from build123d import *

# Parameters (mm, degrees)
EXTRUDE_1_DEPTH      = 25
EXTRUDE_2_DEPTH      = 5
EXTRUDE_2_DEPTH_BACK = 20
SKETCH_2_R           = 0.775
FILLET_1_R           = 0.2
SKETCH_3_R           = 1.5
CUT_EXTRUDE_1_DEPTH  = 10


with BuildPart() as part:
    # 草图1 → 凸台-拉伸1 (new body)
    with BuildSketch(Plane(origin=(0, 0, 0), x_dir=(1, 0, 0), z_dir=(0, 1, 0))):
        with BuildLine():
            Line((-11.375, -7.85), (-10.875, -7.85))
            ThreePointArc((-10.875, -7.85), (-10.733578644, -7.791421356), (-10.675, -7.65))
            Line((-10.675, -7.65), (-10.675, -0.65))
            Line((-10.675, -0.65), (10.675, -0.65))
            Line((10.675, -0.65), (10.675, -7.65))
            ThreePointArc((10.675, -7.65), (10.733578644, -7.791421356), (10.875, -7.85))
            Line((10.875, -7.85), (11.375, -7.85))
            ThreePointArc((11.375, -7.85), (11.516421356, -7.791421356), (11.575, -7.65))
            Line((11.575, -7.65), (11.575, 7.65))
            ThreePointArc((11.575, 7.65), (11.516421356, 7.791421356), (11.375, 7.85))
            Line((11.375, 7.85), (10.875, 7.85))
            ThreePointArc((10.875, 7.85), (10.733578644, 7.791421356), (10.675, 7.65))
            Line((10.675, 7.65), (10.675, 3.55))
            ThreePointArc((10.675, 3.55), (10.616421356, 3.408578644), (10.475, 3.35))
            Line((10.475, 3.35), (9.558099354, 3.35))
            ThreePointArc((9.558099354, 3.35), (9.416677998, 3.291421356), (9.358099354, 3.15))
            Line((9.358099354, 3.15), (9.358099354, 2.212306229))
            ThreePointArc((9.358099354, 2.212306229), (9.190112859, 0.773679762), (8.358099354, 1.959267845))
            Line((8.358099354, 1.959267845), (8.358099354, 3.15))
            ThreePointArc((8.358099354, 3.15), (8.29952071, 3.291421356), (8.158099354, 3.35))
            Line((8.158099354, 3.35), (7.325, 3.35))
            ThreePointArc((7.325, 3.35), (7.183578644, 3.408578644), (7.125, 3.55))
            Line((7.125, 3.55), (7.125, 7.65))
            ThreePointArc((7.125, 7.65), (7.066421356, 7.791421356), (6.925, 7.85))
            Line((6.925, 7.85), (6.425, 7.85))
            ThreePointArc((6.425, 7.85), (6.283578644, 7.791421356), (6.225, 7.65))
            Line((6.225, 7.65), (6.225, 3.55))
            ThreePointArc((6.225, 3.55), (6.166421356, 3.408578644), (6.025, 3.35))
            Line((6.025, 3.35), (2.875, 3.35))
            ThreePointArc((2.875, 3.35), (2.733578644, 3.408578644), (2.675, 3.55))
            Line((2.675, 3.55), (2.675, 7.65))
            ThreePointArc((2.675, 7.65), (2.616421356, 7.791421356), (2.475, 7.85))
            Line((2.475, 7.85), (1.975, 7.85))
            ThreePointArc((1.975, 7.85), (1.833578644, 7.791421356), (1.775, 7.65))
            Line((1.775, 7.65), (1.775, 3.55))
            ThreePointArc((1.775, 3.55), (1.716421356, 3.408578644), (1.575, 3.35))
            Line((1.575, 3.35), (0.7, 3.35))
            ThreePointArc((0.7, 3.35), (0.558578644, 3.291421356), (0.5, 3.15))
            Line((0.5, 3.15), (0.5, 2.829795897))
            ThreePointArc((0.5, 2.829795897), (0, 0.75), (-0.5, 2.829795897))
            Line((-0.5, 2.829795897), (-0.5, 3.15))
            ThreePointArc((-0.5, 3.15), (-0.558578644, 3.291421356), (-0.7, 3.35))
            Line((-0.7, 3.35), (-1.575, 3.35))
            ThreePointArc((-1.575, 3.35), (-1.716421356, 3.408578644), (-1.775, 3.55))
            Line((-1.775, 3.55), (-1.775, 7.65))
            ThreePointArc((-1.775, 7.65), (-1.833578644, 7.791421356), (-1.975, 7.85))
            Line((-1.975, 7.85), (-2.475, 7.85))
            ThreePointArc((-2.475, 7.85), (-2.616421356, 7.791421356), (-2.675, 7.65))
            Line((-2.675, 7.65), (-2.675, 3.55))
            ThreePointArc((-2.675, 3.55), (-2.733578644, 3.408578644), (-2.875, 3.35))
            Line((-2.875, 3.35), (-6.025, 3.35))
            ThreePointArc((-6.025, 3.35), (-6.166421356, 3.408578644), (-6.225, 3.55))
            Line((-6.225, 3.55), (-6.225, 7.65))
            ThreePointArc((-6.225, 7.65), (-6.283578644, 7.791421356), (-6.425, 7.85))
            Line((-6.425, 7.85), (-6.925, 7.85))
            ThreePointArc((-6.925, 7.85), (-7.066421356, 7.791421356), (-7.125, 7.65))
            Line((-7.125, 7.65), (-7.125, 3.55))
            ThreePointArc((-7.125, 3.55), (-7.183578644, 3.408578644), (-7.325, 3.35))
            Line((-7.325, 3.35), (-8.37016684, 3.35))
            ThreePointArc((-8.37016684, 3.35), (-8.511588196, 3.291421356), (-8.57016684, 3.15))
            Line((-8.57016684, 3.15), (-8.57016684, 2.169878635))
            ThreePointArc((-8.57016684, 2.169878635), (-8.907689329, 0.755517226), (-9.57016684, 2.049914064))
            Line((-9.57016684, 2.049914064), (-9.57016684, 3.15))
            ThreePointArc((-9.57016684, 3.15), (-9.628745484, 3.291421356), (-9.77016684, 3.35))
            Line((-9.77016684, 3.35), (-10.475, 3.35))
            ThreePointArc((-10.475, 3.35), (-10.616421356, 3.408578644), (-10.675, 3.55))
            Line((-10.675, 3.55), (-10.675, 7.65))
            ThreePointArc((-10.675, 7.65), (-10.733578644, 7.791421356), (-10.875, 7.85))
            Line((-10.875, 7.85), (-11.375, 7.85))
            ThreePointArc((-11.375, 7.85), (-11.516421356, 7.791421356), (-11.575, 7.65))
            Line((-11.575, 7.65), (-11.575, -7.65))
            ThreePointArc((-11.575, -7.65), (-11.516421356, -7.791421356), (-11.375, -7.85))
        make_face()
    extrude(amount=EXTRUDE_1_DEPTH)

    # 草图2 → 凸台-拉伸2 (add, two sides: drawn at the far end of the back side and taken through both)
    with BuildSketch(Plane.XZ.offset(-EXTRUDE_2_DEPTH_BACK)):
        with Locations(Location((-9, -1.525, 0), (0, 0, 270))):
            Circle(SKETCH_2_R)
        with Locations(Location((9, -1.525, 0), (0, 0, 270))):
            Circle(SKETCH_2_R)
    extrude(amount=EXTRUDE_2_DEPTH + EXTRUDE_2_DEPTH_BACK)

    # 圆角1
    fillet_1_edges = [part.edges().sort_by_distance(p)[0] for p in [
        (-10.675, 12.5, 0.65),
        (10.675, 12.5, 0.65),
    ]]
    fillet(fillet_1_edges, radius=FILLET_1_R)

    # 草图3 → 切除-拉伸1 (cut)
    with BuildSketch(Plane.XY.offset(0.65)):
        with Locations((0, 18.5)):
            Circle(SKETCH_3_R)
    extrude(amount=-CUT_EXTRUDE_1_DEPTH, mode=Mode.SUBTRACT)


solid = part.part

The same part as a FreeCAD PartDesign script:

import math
import FreeCAD as App
import Part
import Sketcher

V = App.Vector
Q = App.Units.Quantity


def edges_at(feature, points):
    """Names of the edges that pass closest to the given points."""
    edges = feature.Shape.Edges
    near = lambda p: min(range(len(edges)), key=lambda i: edges[i].distToShape(Part.Vertex(*p))[0])
    return sorted({f"Edge{near(p) + 1}" for p in points})

doc = App.newDocument("Part")
params = doc.addObject("Spreadsheet::Sheet", "Params")
for row, (alias, value) in enumerate([
    ("sketch1_radius", "0.2 mm"),
    ("sketch1_radius2", "1.1 mm"),
    ("sketch1_height", "7 mm"),
    ("sketch1_width", "0.5 mm"),
    ("sketch1_height2", "15.3 mm"),
    ("pad1_length", "25 mm"),
    ("sketch2_diameter", "1.55 mm"),
    ("pad2_length", "5 mm"),
    ("pad2_length2", "20 mm"),
    ("fillet_radius", "0.2 mm"),
    ("sketch3_diameter", "3 mm"),
    ("pocket1_length", "10 mm"),
], start=1):
    params.set(f"A{row}", alias)
    params.set(f"B{row}", "=" + value)
    params.setAlias(f"B{row}", alias)

body = doc.addObject("PartDesign::Body", "Body")

sketch1 = body.newObject("Sketcher::SketchObject", "Sketch")
sketch1.AttachmentSupport = (doc.getObject("XZ_Plane"), [""])
sketch1.MapMode = "FlatFace"
sketch1.addGeometry(Part.LineSegment(V(-11.38, 7.85, 0), V(-10.88, 7.85, 0)), False)
sketch1.addGeometry(Part.ArcOfCircle(Part.Circle(V(-10.88, 7.65, 0), V(0, 0, 1), 0.2), math.radians(0), math.radians(90)), False)
sketch1.addGeometry(Part.LineSegment(V(-10.68, 7.65, 0), V(-10.68, 0.65, 0)), False)
sketch1.addGeometry(Part.LineSegment(V(-10.68, 0.65, 0), V(10.68, 0.65, 0)), False)
sketch1.addGeometry(Part.LineSegment(V(10.68, 0.65, 0), V(10.68, 7.65, 0)), False)
sketch1.addGeometry(Part.ArcOfCircle(Part.Circle(V(10.88, 7.65, 0), V(0, 0, 1), 0.2), math.radians(90), math.radians(180)), False)
sketch1.addGeometry(Part.LineSegment(V(10.88, 7.85, 0), V(11.38, 7.85, 0)), False)
sketch1.addGeometry(Part.ArcOfCircle(Part.Circle(V(11.37, 7.65, 0), V(0, 0, 1), 0.2), math.radians(0), math.radians(90)), False)
sketch1.addGeometry(Part.LineSegment(V(11.57, 7.65, 0), V(11.57, -7.65, 0)), False)
sketch1.addGeometry(Part.ArcOfCircle(Part.Circle(V(11.37, -7.65, 0), V(0, 0, 1), 0.2), math.radians(-90), math.radians(0)), False)
sketch1.addGeometry(Part.LineSegment(V(11.38, -7.85, 0), V(10.88, -7.85, 0)), False)
sketch1.addGeometry(Part.ArcOfCircle(Part.Circle(V(10.88, -7.65, 0), V(0, 0, 1), 0.2), math.radians(-180), math.radians(-90)), False)
sketch1.addGeometry(Part.LineSegment(V(10.68, -7.65, 0), V(10.68, -3.55, 0)), False)
sketch1.addGeometry(Part.ArcOfCircle(Part.Circle(V(10.47, -3.55, 0), V(0, 0, 1), 0.2), math.radians(0), math.radians(90)), False)
sketch1.addGeometry(Part.LineSegment(V(10.47, -3.35, 0), V(9.56, -3.35, 0)), False)
sketch1.addGeometry(Part.ArcOfCircle(Part.Circle(V(9.56, -3.15, 0), V(0, 0, 1), 0.2), math.radians(-180), math.radians(-90)), False)
sketch1.addGeometry(Part.LineSegment(V(9.36, -3.15, 0), V(9.36, -2.21, 0)), False)
sketch1.addGeometry(Part.ArcOfCircle(Part.Circle(V(9, -1.52, 0), V(0, 0, 1), 0.78), math.radians(-62), math.radians(214)), False)
sketch1.addGeometry(Part.LineSegment(V(8.36, -1.96, 0), V(8.36, -3.15, 0)), False)
sketch1.addGeometry(Part.ArcOfCircle(Part.Circle(V(8.16, -3.15, 0), V(0, 0, 1), 0.2), math.radians(-90), math.radians(0)), False)
sketch1.addGeometry(Part.LineSegment(V(8.16, -3.35, 0), V(7.33, -3.35, 0)), False)
sketch1.addGeometry(Part.ArcOfCircle(Part.Circle(V(7.33, -3.55, 0), V(0, 0, 1), 0.2), math.radians(90), math.radians(180)), False)
sketch1.addGeometry(Part.LineSegment(V(7.12, -3.55, 0), V(7.12, -7.65, 0)), False)
sketch1.addGeometry(Part.ArcOfCircle(Part.Circle(V(6.92, -7.65, 0), V(0, 0, 1), 0.2), math.radians(-90), math.radians(0)), False)
sketch1.addGeometry(Part.LineSegment(V(6.92, -7.85, 0), V(6.42, -7.85, 0)), False)
sketch1.addGeometry(Part.ArcOfCircle(Part.Circle(V(6.43, -7.65, 0), V(0, 0, 1), 0.2), math.radians(-180), math.radians(-90)), False)
sketch1.addGeometry(Part.LineSegment(V(6.22, -7.65, 0), V(6.22, -3.55, 0)), False)
sketch1.addGeometry(Part.ArcOfCircle(Part.Circle(V(6.02, -3.55, 0), V(0, 0, 1), 0.2), math.radians(0), math.radians(90)), False)
sketch1.addGeometry(Part.LineSegment(V(6.03, -3.35, 0), V(2.88, -3.35, 0)), False)
sketch1.addGeometry(Part.ArcOfCircle(Part.Circle(V(2.88, -3.55, 0), V(0, 0, 1), 0.2), math.radians(90), math.radians(180)), False)
sketch1.addGeometry(Part.LineSegment(V(2.67, -3.55, 0), V(2.67, -7.65, 0)), False)
sketch1.addGeometry(Part.ArcOfCircle(Part.Circle(V(2.47, -7.65, 0), V(0, 0, 1), 0.2), math.radians(-90), math.radians(0)), False)
sketch1.addGeometry(Part.LineSegment(V(2.48, -7.85, 0), V(1.98, -7.85, 0)), False)
sketch1.addGeometry(Part.ArcOfCircle(Part.Circle(V(1.98, -7.65, 0), V(0, 0, 1), 0.2), math.radians(-180), math.radians(-90)), False)
sketch1.addGeometry(Part.LineSegment(V(1.77, -7.65, 0), V(1.77, -3.55, 0)), False)
sketch1.addGeometry(Part.ArcOfCircle(Part.Circle(V(1.57, -3.55, 0), V(0, 0, 1), 0.2), math.radians(0), math.radians(90)), False)
sketch1.addGeometry(Part.LineSegment(V(1.57, -3.35, 0), V(0.7, -3.35, 0)), False)
sketch1.addGeometry(Part.ArcOfCircle(Part.Circle(V(0.7, -3.15, 0), V(0, 0, 1), 0.2), math.radians(-180), math.radians(-90)), False)
sketch1.addGeometry(Part.LineSegment(V(0.5, -3.15, 0), V(0.5, -2.83, 0)), False)
sketch1.addGeometry(Part.ArcOfCircle(Part.Circle(V(0, -1.85, 0), V(0, 0, 1), 1.1), math.radians(-63), math.radians(243)), False)
sketch1.addGeometry(Part.LineSegment(V(-0.5, -2.83, 0), V(-0.5, -3.15, 0)), False)
sketch1.addGeometry(Part.ArcOfCircle(Part.Circle(V(-0.7, -3.15, 0), V(0, 0, 1), 0.2), math.radians(-90), math.radians(0)), False)
sketch1.addGeometry(Part.LineSegment(V(-0.7, -3.35, 0), V(-1.57, -3.35, 0)), False)
sketch1.addGeometry(Part.ArcOfCircle(Part.Circle(V(-1.57, -3.55, 0), V(0, 0, 1), 0.2), math.radians(90), math.radians(180)), False)
sketch1.addGeometry(Part.LineSegment(V(-1.77, -3.55, 0), V(-1.77, -7.65, 0)), False)
sketch1.addGeometry(Part.ArcOfCircle(Part.Circle(V(-1.98, -7.65, 0), V(0, 0, 1), 0.2), math.radians(-90), math.radians(0)), False)
sketch1.addGeometry(Part.LineSegment(V(-1.98, -7.85, 0), V(-2.48, -7.85, 0)), False)
sketch1.addGeometry(Part.ArcOfCircle(Part.Circle(V(-2.47, -7.65, 0), V(0, 0, 1), 0.2), math.radians(-180), math.radians(-90)), False)
sketch1.addGeometry(Part.LineSegment(V(-2.67, -7.65, 0), V(-2.67, -3.55, 0)), False)
sketch1.addGeometry(Part.ArcOfCircle(Part.Circle(V(-2.88, -3.55, 0), V(0, 0, 1), 0.2), math.radians(0), math.radians(90)), False)
sketch1.addGeometry(Part.LineSegment(V(-2.88, -3.35, 0), V(-6.03, -3.35, 0)), False)
sketch1.addGeometry(Part.ArcOfCircle(Part.Circle(V(-6.02, -3.55, 0), V(0, 0, 1), 0.2), math.radians(90), math.radians(180)), False)
sketch1.addGeometry(Part.LineSegment(V(-6.22, -3.55, 0), V(-6.22, -7.65, 0)), False)
sketch1.addGeometry(Part.ArcOfCircle(Part.Circle(V(-6.43, -7.65, 0), V(0, 0, 1), 0.2), math.radians(-90), math.radians(0)), False)
sketch1.addGeometry(Part.LineSegment(V(-6.42, -7.85, 0), V(-6.92, -7.85, 0)), False)
sketch1.addGeometry(Part.ArcOfCircle(Part.Circle(V(-6.92, -7.65, 0), V(0, 0, 1), 0.2), math.radians(-180), math.radians(-90)), False)
sketch1.addGeometry(Part.LineSegment(V(-7.12, -7.65, 0), V(-7.12, -3.55, 0)), False)
sketch1.addGeometry(Part.ArcOfCircle(Part.Circle(V(-7.33, -3.55, 0), V(0, 0, 1), 0.2), math.radians(0), math.radians(90)), False)
sketch1.addGeometry(Part.LineSegment(V(-7.33, -3.35, 0), V(-8.37, -3.35, 0)), False)
sketch1.addGeometry(Part.ArcOfCircle(Part.Circle(V(-8.37, -3.15, 0), V(0, 0, 1), 0.2), math.radians(-180), math.radians(-90)), False)
sketch1.addGeometry(Part.LineSegment(V(-8.57, -3.15, 0), V(-8.57, -2.17, 0)), False)
sketch1.addGeometry(Part.ArcOfCircle(Part.Circle(V(-9, -1.52, 0), V(0, 0, 1), 0.78), math.radians(-56), math.radians(223)), False)
sketch1.addGeometry(Part.LineSegment(V(-9.57, -2.05, 0), V(-9.57, -3.15, 0)), False)
sketch1.addGeometry(Part.ArcOfCircle(Part.Circle(V(-9.77, -3.15, 0), V(0, 0, 1), 0.2), math.radians(-90), math.radians(0)), False)
sketch1.addGeometry(Part.LineSegment(V(-9.77, -3.35, 0), V(-10.47, -3.35, 0)), False)
sketch1.addGeometry(Part.ArcOfCircle(Part.Circle(V(-10.47, -3.55, 0), V(0, 0, 1), 0.2), math.radians(90), math.radians(180)), False)
sketch1.addGeometry(Part.LineSegment(V(-10.68, -3.55, 0), V(-10.68, -7.65, 0)), False)
sketch1.addGeometry(Part.ArcOfCircle(Part.Circle(V(-10.88, -7.65, 0), V(0, 0, 1), 0.2), math.radians(-90), math.radians(0)), False)
sketch1.addGeometry(Part.LineSegment(V(-10.88, -7.85, 0), V(-11.38, -7.85, 0)), False)
sketch1.addGeometry(Part.ArcOfCircle(Part.Circle(V(-11.37, -7.65, 0), V(0, 0, 1), 0.2), math.radians(-180), math.radians(-90)), False)
sketch1.addGeometry(Part.LineSegment(V(-11.57, -7.65, 0), V(-11.57, 7.65, 0)), False)
sketch1.addGeometry(Part.ArcOfCircle(Part.Circle(V(-11.37, 7.65, 0), V(0, 0, 1), 0.2), math.radians(90), math.radians(180)), False)
sketch1.addConstraint(Sketcher.Constraint("Tangent", 0, 2, 1, 2))
sketch1.addConstraint(Sketcher.Constraint("Tangent", 1, 1, 2, 1))
sketch1.addConstraint(Sketcher.Constraint("Coincident", 2, 2, 3, 1))
sketch1.addConstraint(Sketcher.Constraint("Coincident", 3, 2, 4, 1))
sketch1.addConstraint(Sketcher.Constraint("Tangent", 4, 2, 5, 2))
sketch1.addConstraint(Sketcher.Constraint("Tangent", 5, 1, 6, 1))
sketch1.addConstraint(Sketcher.Constraint("Tangent", 6, 2, 7, 2))
sketch1.addConstraint(Sketcher.Constraint("Tangent", 7, 1, 8, 1))
sketch1.addConstraint(Sketcher.Constraint("Tangent", 8, 2, 9, 2))
sketch1.addConstraint(Sketcher.Constraint("Tangent", 9, 1, 10, 1))
sketch1.addConstraint(Sketcher.Constraint("Tangent", 10, 2, 11, 2))
sketch1.addConstraint(Sketcher.Constraint("Tangent", 11, 1, 12, 1))
sketch1.addConstraint(Sketcher.Constraint("Tangent", 12, 2, 13, 1))
sketch1.addConstraint(Sketcher.Constraint("Tangent", 13, 2, 14, 1))
sketch1.addConstraint(Sketcher.Constraint("Tangent", 14, 2, 15, 2))
sketch1.addConstraint(Sketcher.Constraint("Tangent", 15, 1, 16, 1))
sketch1.addConstraint(Sketcher.Constraint("Coincident", 16, 2, 17, 1))
sketch1.addConstraint(Sketcher.Constraint("Coincident", 17, 2, 18, 1))
sketch1.addConstraint(Sketcher.Constraint("Tangent", 18, 2, 19, 2))
sketch1.addConstraint(Sketcher.Constraint("Tangent", 19, 1, 20, 1))
sketch1.addConstraint(Sketcher.Constraint("Tangent", 20, 2, 21, 1))
sketch1.addConstraint(Sketcher.Constraint("Tangent", 21, 2, 22, 1))
sketch1.addConstraint(Sketcher.Constraint("Tangent", 22, 2, 23, 2))
sketch1.addConstraint(Sketcher.Constraint("Tangent", 23, 1, 24, 1))
sketch1.addConstraint(Sketcher.Constraint("Tangent", 24, 2, 25, 2))
sketch1.addConstraint(Sketcher.Constraint("Tangent", 25, 1, 26, 1))
sketch1.addConstraint(Sketcher.Constraint("Tangent", 26, 2, 27, 1))
sketch1.addConstraint(Sketcher.Constraint("Tangent", 27, 2, 28, 1))
sketch1.addConstraint(Sketcher.Constraint("Tangent", 28, 2, 29, 1))
sketch1.addConstraint(Sketcher.Constraint("Tangent", 29, 2, 30, 1))
sketch1.addConstraint(Sketcher.Constraint("Tangent", 30, 2, 31, 2))
sketch1.addConstraint(Sketcher.Constraint("Tangent", 31, 1, 32, 1))
sketch1.addConstraint(Sketcher.Constraint("Tangent", 32, 2, 33, 2))
sketch1.addConstraint(Sketcher.Constraint("Tangent", 33, 1, 34, 1))
sketch1.addConstraint(Sketcher.Constraint("Tangent", 34, 2, 35, 1))
sketch1.addConstraint(Sketcher.Constraint("Tangent", 35, 2, 36, 1))
sketch1.addConstraint(Sketcher.Constraint("Tangent", 36, 2, 37, 2))
sketch1.addConstraint(Sketcher.Constraint("Tangent", 37, 1, 38, 1))
sketch1.addConstraint(Sketcher.Constraint("Coincident", 38, 2, 39, 1))
sketch1.addConstraint(Sketcher.Constraint("Coincident", 39, 2, 40, 1))
sketch1.addConstraint(Sketcher.Constraint("Tangent", 40, 2, 41, 2))
sketch1.addConstraint(Sketcher.Constraint("Tangent", 41, 1, 42, 1))
sketch1.addConstraint(Sketcher.Constraint("Tangent", 42, 2, 43, 1))
sketch1.addConstraint(Sketcher.Constraint("Tangent", 43, 2, 44, 1))
sketch1.addConstraint(Sketcher.Constraint("Tangent", 44, 2, 45, 2))
sketch1.addConstraint(Sketcher.Constraint("Tangent", 45, 1, 46, 1))
sketch1.addConstraint(Sketcher.Constraint("Tangent", 46, 2, 47, 2))
sketch1.addConstraint(Sketcher.Constraint("Tangent", 47, 1, 48, 1))
sketch1.addConstraint(Sketcher.Constraint("Tangent", 48, 2, 49, 1))
sketch1.addConstraint(Sketcher.Constraint("Tangent", 49, 2, 50, 1))
sketch1.addConstraint(Sketcher.Constraint("Tangent", 50, 2, 51, 1))
sketch1.addConstraint(Sketcher.Constraint("Tangent", 51, 2, 52, 1))
sketch1.addConstraint(Sketcher.Constraint("Tangent", 52, 2, 53, 2))
sketch1.addConstraint(Sketcher.Constraint("Tangent", 53, 1, 54, 1))
sketch1.addConstraint(Sketcher.Constraint("Tangent", 54, 2, 55, 2))
sketch1.addConstraint(Sketcher.Constraint("Tangent", 55, 1, 56, 1))
sketch1.addConstraint(Sketcher.Constraint("Tangent", 56, 2, 57, 1))
sketch1.addConstraint(Sketcher.Constraint("Tangent", 57, 2, 58, 1))
sketch1.addConstraint(Sketcher.Constraint("Tangent", 58, 2, 59, 2))
sketch1.addConstraint(Sketcher.Constraint("Tangent", 59, 1, 60, 1))
sketch1.addConstraint(Sketcher.Constraint("Coincident", 60, 2, 61, 1))
sketch1.addConstraint(Sketcher.Constraint("Coincident", 61, 2, 62, 1))
sketch1.addConstraint(Sketcher.Constraint("Tangent", 62, 2, 63, 2))
sketch1.addConstraint(Sketcher.Constraint("Tangent", 63, 1, 64, 1))
sketch1.addConstraint(Sketcher.Constraint("Tangent", 64, 2, 65, 1))
sketch1.addConstraint(Sketcher.Constraint("Tangent", 65, 2, 66, 1))
sketch1.addConstraint(Sketcher.Constraint("Tangent", 66, 2, 67, 2))
sketch1.addConstraint(Sketcher.Constraint("Tangent", 67, 1, 68, 1))
sketch1.addConstraint(Sketcher.Constraint("Tangent", 68, 2, 69, 2))
sketch1.addConstraint(Sketcher.Constraint("Tangent", 69, 1, 70, 1))
sketch1.addConstraint(Sketcher.Constraint("Tangent", 70, 2, 71, 2))
sketch1.addConstraint(Sketcher.Constraint("Tangent", 71, 1, 0, 1))
sketch1.addConstraint(Sketcher.Constraint("Horizontal", 0))
sketch1.addConstraint(Sketcher.Constraint("Vertical", 2))
sketch1.addConstraint(Sketcher.Constraint("Horizontal", 3))
sketch1.addConstraint(Sketcher.Constraint("Vertical", 4))
sketch1.addConstraint(Sketcher.Constraint("Horizontal", 6))
sketch1.addConstraint(Sketcher.Constraint("Vertical", 8))
sketch1.addConstraint(Sketcher.Constraint("Horizontal", 10))
sketch1.addConstraint(Sketcher.Constraint("Vertical", 12))
sketch1.addConstraint(Sketcher.Constraint("Horizontal", 14))
sketch1.addConstraint(Sketcher.Constraint("Vertical", 16))
sketch1.addConstraint(Sketcher.Constraint("Vertical", 18))
sketch1.addConstraint(Sketcher.Constraint("Horizontal", 20))
sketch1.addConstraint(Sketcher.Constraint("Vertical", 22))
sketch1.addConstraint(Sketcher.Constraint("Horizontal", 24))
sketch1.addConstraint(Sketcher.Constraint("Vertical", 26))
sketch1.addConstraint(Sketcher.Constraint("Horizontal", 28))
sketch1.addConstraint(Sketcher.Constraint("Vertical", 30))
sketch1.addConstraint(Sketcher.Constraint("Horizontal", 32))
sketch1.addConstraint(Sketcher.Constraint("Vertical", 34))
sketch1.addConstraint(Sketcher.Constraint("Horizontal", 36))
sketch1.addConstraint(Sketcher.Constraint("Vertical", 38))
sketch1.addConstraint(Sketcher.Constraint("Vertical", 40))
sketch1.addConstraint(Sketcher.Constraint("Horizontal", 42))
sketch1.addConstraint(Sketcher.Constraint("Vertical", 44))
sketch1.addConstraint(Sketcher.Constraint("Horizontal", 46))
sketch1.addConstraint(Sketcher.Constraint("Vertical", 48))
sketch1.addConstraint(Sketcher.Constraint("Horizontal", 50))
sketch1.addConstraint(Sketcher.Constraint("Vertical", 52))
sketch1.addConstraint(Sketcher.Constraint("Horizontal", 54))
sketch1.addConstraint(Sketcher.Constraint("Vertical", 56))
sketch1.addConstraint(Sketcher.Constraint("Horizontal", 58))
sketch1.addConstraint(Sketcher.Constraint("Vertical", 60))
sketch1.addConstraint(Sketcher.Constraint("Vertical", 62))
sketch1.addConstraint(Sketcher.Constraint("Horizontal", 64))
sketch1.addConstraint(Sketcher.Constraint("Vertical", 66))
sketch1.addConstraint(Sketcher.Constraint("Horizontal", 68))
sketch1.addConstraint(Sketcher.Constraint("Vertical", 70))
sketch1.addConstraint(Sketcher.Constraint("Equal", 1, 5))
sketch1.addConstraint(Sketcher.Constraint("Equal", 5, 7))
sketch1.addConstraint(Sketcher.Constraint("Equal", 7, 9))
sketch1.addConstraint(Sketcher.Constraint("Equal", 9, 11))
sketch1.addConstraint(Sketcher.Constraint("Equal", 11, 13))
sketch1.addConstraint(Sketcher.Constraint("Equal", 13, 15))
sketch1.addConstraint(Sketcher.Constraint("Equal", 15, 19))
sketch1.addConstraint(Sketcher.Constraint("Equal", 19, 21))
sketch1.addConstraint(Sketcher.Constraint("Equal", 21, 23))
sketch1.addConstraint(Sketcher.Constraint("Equal", 23, 25))
sketch1.addConstraint(Sketcher.Constraint("Equal", 25, 27))
sketch1.addConstraint(Sketcher.Constraint("Equal", 27, 29))
sketch1.addConstraint(Sketcher.Constraint("Equal", 29, 31))
sketch1.addConstraint(Sketcher.Constraint("Equal", 31, 33))
sketch1.addConstraint(Sketcher.Constraint("Equal", 33, 35))
sketch1.addConstraint(Sketcher.Constraint("Equal", 35, 37))
sketch1.addConstraint(Sketcher.Constraint("Equal", 37, 41))
sketch1.addConstraint(Sketcher.Constraint("Equal", 41, 43))
sketch1.addConstraint(Sketcher.Constraint("Equal", 43, 45))
sketch1.addConstraint(Sketcher.Constraint("Equal", 45, 47))
sketch1.addConstraint(Sketcher.Constraint("Equal", 47, 49))
sketch1.addConstraint(Sketcher.Constraint("Equal", 49, 51))
sketch1.addConstraint(Sketcher.Constraint("Equal", 51, 53))
sketch1.addConstraint(Sketcher.Constraint("Equal", 53, 55))
sketch1.addConstraint(Sketcher.Constraint("Equal", 55, 57))
sketch1.addConstraint(Sketcher.Constraint("Equal", 57, 59))
sketch1.addConstraint(Sketcher.Constraint("Equal", 17, 61))
sketch1.addConstraint(Sketcher.Constraint("Equal", 59, 63))
sketch1.addConstraint(Sketcher.Constraint("Equal", 63, 65))
sketch1.addConstraint(Sketcher.Constraint("Equal", 65, 67))
sketch1.addConstraint(Sketcher.Constraint("Equal", 67, 69))
sketch1.addConstraint(Sketcher.Constraint("Equal", 69, 71))
sketch1.addConstraint(Sketcher.Constraint("Symmetric", 1, 3, 11, 3, -1, 1))
sketch1.addConstraint(Sketcher.Constraint("Symmetric", 5, 3, 67, 3, -1, 1))
sketch1.addConstraint(Sketcher.Constraint("Symmetric", 1, 3, 5, 3, -2))
sketch1.addConstraint(Sketcher.Constraint("Symmetric", 37, 3, 41, 3, -2))
sketch1.addConstraint(Sketcher.Constraint("Symmetric", 33, 3, 45, 3, -2))
sketch1.addConstraint(Sketcher.Constraint("Symmetric", 29, 3, 49, 3, -2))
sketch1.addConstraint(Sketcher.Constraint("Symmetric", 25, 3, 53, 3, -2))
sketch1.addConstraint(Sketcher.Constraint("Symmetric", 21, 3, 57, 3, -2))
sketch1.addConstraint(Sketcher.Constraint("Symmetric", 17, 3, 61, 3, -2))
sketch1.addConstraint(Sketcher.Constraint("PointOnObject", 39, 3, -2))
sketch1.addConstraint(Sketcher.Constraint("Horizontal", 15, 3, 19, 3))
sketch1.addConstraint(Sketcher.Constraint("Horizontal", 11, 3, 23, 3))
sketch1.addConstraint(Sketcher.Constraint("Horizontal", 21, 3, 27, 3))
sketch1.addConstraint(Sketcher.Constraint("Horizontal", 25, 3, 31, 3))
sketch1.addConstraint(Sketcher.Constraint("Horizontal", 29, 3, 35, 3))
sketch1.addConstraint(Sketcher.Constraint("Horizontal", 59, 3, 63, 3))
sketch1.addConstraint(Sketcher.Constraint("Equal", 0, 6))
sketch1.addConstraint(Sketcher.Constraint("Equal", 10, 24))
sketch1.addConstraint(Sketcher.Constraint("Equal", 24, 32))
sketch1.addConstraint(Sketcher.Constraint("Radius", 1, Q("0.2 mm")))
sketch1.addConstraint(Sketcher.Constraint("Radius", 39, Q("1.1 mm")))
sketch1.addConstraint(Sketcher.Constraint("DistanceY", 2, 2, 2, 1, Q("7 mm")))
sketch1.addConstraint(Sketcher.Constraint("DistanceX", 0, 1, 0, 2, Q("0.5 mm")))
sketch1.addConstraint(Sketcher.Constraint("DistanceY", 8, 2, 8, 1, Q("15.3 mm")))
sketch1.addConstraint(Sketcher.Constraint("DistanceY", 12, 1, 12, 2, Q("4.1 mm")))
sketch1.addConstraint(Sketcher.Constraint("DistanceX", -1, 1, 17, 3, Q("9 mm")))
sketch1.addConstraint(Sketcher.Constraint("Radius", 17, Q("0.775 mm")))
sketch1.addConstraint(Sketcher.Constraint("DistanceX", 3, 1, 3, 2, Q("21.35 mm")))
sketch1.addConstraint(Sketcher.Constraint("DistanceX", 28, 2, 28, 1, Q("3.15 mm")))
sketch1.addConstraint(Sketcher.Constraint("DistanceX", -1, 1, 37, 3, Q("0.7 mm")))
sketch1.addConstraint(Sketcher.Constraint("DistanceX", 36, 2, 36, 1, Q("0.875 mm")))
sketch1.addConstraint(Sketcher.Constraint("DistanceY", 39, 3, -1, 1, Q("1.85 mm")))
sketch1.addConstraint(Sketcher.Constraint("DistanceX", 14, 2, 14, 1, Q("0.916901 mm")))
sketch1.addConstraint(Sketcher.Constraint("DistanceX", 20, 2, 20, 1, Q("0.833099 mm")))
sketch1.addConstraint(Sketcher.Constraint("DistanceY", 17, 3, -1, 1, Q("1.525 mm")))
sketch1.addConstraint(Sketcher.Constraint("DistanceY", 60, 1, 60, 2, Q("0.980121 mm")))
sketch1.addConstraint(Sketcher.Constraint("DistanceX", 64, 2, 64, 1, Q("0.704833 mm")))
sketch1.setExpression("Constraints[160]", "Params.sketch1_radius")
sketch1.setExpression("Constraints[161]", "Params.sketch1_radius2")
sketch1.setExpression("Constraints[162]", "Params.sketch1_height")
sketch1.setExpression("Constraints[163]", "Params.sketch1_width")
sketch1.setExpression("Constraints[164]", "Params.sketch1_height2")
pad1 = body.newObject("PartDesign::Pad", "Pad")
pad1.Profile = sketch1
pad1.setExpression("Length", "Params.pad1_length")
pad1.Reversed = True

sketch2 = body.newObject("Sketcher::SketchObject", "Sketch001")
sketch2.AttachmentSupport = (doc.getObject("XZ_Plane"), [""])
sketch2.MapMode = "FlatFace"
sketch2.addGeometry(Part.Circle(V(-9, -1.5, 0), V(0, 0, 1), 0.8), False)
sketch2.addGeometry(Part.Circle(V(9, -1.5, 0), V(0, 0, 1), 0.8), False)
sketch2.addConstraint(Sketcher.Constraint("Equal", 0, 1))
sketch2.addConstraint(Sketcher.Constraint("Symmetric", 0, 3, 1, 3, -2))
sketch2.addConstraint(Sketcher.Constraint("Diameter", 0, Q("1.55 mm")))
sketch2.addConstraint(Sketcher.Constraint("DistanceX", 0, 3, -1, 1, Q("9 mm")))
sketch2.addConstraint(Sketcher.Constraint("DistanceY", 0, 3, -1, 1, Q("1.525 mm")))
sketch2.setExpression("Constraints[2]", "Params.sketch2_diameter")
pad2 = body.newObject("PartDesign::Pad", "Pad001")
pad2.Profile = sketch2
pad2.Type = "TwoLengths"
pad2.setExpression("Length", "Params.pad2_length")
pad2.setExpression("Length2", "Params.pad2_length2")
doc.recompute()

fillet = body.newObject("PartDesign::Fillet", "Fillet")
fillet.Base = (pad2, edges_at(pad2, [(-10.675, 12.5, 0.65), (10.675, 12.5, 0.65)]))
fillet.setExpression("Radius", "Params.fillet_radius")

sketch3 = body.newObject("Sketcher::SketchObject", "Sketch002")
sketch3.AttachmentSupport = (doc.getObject("XY_Plane"), [""])
sketch3.MapMode = "FlatFace"
sketch3.AttachmentOffset = App.Placement(V(0, 0, 0.65), App.Rotation())
sketch3.addGeometry(Part.Circle(V(0, 18.5, 0), V(0, 0, 1), 1.5), False)
sketch3.addConstraint(Sketcher.Constraint("PointOnObject", 0, 3, -2))
sketch3.addConstraint(Sketcher.Constraint("Diameter", 0, Q("3 mm")))
sketch3.addConstraint(Sketcher.Constraint("DistanceY", -1, 1, 0, 3, Q("18.5 mm")))
sketch3.setExpression("Constraints[1]", "Params.sketch3_diameter")
pocket1 = body.newObject("PartDesign::Pocket", "Pocket")
pocket1.Profile = sketch3
pocket1.setExpression("Length", "Params.pocket1_length")

doc.recompute()
